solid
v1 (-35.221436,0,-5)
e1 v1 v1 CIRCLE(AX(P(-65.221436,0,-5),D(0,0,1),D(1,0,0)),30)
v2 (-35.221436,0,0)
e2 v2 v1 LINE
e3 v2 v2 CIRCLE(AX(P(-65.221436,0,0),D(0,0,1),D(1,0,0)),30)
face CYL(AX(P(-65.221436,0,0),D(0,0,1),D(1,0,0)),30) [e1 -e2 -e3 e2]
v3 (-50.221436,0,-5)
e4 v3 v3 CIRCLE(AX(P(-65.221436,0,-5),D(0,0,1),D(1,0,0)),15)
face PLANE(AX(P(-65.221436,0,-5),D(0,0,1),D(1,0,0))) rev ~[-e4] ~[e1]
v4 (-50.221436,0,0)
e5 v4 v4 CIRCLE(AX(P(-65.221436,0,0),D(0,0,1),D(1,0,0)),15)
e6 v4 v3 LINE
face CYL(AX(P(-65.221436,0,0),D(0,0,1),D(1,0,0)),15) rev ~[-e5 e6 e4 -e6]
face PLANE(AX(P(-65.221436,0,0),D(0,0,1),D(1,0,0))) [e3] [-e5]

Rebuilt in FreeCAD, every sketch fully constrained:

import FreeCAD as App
import Part
import Sketcher
from FreeCAD import Vector

doc = App.newDocument("Part")
body = doc.addObject("PartDesign::Body", "Body")

# Sketch on XY plane
sketch1 = body.newObject("Sketcher::SketchObject", "Sketch")
sketch1.AttachmentSupport = (doc.getObject("XY_Plane"), [""])
sketch1.MapMode = "FlatFace"
sketch1.addGeometry(Part.Circle(Vector(-65, 0, 0), Vector(0, 0, 1), 30), False)
sketch1.addConstraint([
    Sketcher.Constraint("PointOnObject", 0, 3, -1),
    Sketcher.Constraint("Diameter", 0, 60.0),
    Sketcher.Constraint("DistanceX", 0, 3, -1, 1, 65.221436),
])
pad1 = body.newObject("PartDesign::Pad", "Pad")
pad1.Profile = sketch1
pad1.Length = 5
pad1.Reversed = True

# Sketch on XY plane
sketch2 = body.newObject("Sketcher::SketchObject", "Sketch001")
sketch2.AttachmentSupport = (doc.getObject("XY_Plane"), [""])
sketch2.MapMode = "FlatFace"
sketch2.addGeometry(Part.Circle(Vector(-65, 0, 0), Vector(0, 0, 1), 15), False)
sketch2.addConstraint([
    Sketcher.Constraint("PointOnObject", 0, 3, -1),
    Sketcher.Constraint("Diameter", 0, 30.0),
    Sketcher.Constraint("DistanceX", 0, 3, -1, 1, 65.221436),
])
pocket1 = body.newObject("PartDesign::Pocket", "Pocket")
pocket1.Profile = sketch2
pocket1.Type = "ThroughAll"

doc.recompute()
